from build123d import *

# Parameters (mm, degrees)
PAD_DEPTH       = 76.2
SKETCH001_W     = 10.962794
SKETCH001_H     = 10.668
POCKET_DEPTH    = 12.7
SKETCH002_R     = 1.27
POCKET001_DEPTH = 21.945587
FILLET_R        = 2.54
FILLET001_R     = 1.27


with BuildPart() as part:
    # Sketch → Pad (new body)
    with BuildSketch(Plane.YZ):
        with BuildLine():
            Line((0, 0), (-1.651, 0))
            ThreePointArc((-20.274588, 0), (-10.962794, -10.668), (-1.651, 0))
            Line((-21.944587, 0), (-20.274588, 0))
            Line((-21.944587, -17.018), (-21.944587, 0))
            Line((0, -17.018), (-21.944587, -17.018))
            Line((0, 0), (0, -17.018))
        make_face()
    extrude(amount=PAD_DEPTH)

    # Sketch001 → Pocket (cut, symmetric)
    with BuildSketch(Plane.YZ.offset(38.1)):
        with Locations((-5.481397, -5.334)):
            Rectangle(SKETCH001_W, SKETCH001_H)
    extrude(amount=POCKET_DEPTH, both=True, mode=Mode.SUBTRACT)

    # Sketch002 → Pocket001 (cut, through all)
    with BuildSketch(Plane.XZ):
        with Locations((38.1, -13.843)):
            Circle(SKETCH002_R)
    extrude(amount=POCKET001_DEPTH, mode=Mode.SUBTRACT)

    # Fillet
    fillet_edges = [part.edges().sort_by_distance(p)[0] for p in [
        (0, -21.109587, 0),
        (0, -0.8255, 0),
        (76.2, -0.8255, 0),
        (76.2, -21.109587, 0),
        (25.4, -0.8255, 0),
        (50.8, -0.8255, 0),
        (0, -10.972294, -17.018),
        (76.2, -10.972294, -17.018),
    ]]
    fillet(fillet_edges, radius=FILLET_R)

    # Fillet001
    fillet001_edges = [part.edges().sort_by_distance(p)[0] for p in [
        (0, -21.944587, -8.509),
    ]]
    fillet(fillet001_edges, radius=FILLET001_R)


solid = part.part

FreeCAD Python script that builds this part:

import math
import FreeCAD as App
import Part
import Sketcher
Q = App.Units.Quantity


def edges_at(feature, points):
    """Names of the edges that pass closest to the given points."""
    edges = feature.Shape.Edges
    near = lambda p: min(range(len(edges)), key=lambda i: edges[i].distToShape(Part.Vertex(*p))[0])
    return sorted({f"Edge{near(p) + 1}" for p in points})


def add_polygon(sketch, points):
    """Adds a closed chain of lines whose ends are joined by coincident constraints."""
    first, n = sketch.GeometryCount, len(points)
    for a, b in zip(points, points[1:] + points[:1]):
        sketch.addGeometry(Part.LineSegment(App.Vector(*a, 0), App.Vector(*b, 0)), False)
    for i in range(n):
        sketch.addConstraint(Sketcher.Constraint("Coincident", first + i, 2, first + (i + 1) % n, 1))

doc = App.newDocument("Part")
params = doc.addObject("Spreadsheet::Sheet", "Params")
for row, (alias, value) in enumerate([
    ("sketch1_radius", "0.37 in"),
    ("sketch1_height", "0.67 in"),
    ("sketch1_width", "0.065 in"),
    ("pad1_length", "3 in"),
    ("sketch2_height", "0.42 in"),
    ("pocket1_length", "1 in"),
    ("sketch3_diameter", "0.1 in"),
    ("fillet_radius", "0.1 in"),
    ("fillet2_radius", "0.05 in"),
], start=1):
    params.set(f"A{row}", alias)
    params.set(f"B{row}", "=" + value)
    params.setAlias(f"B{row}", alias)

body = doc.addObject("PartDesign::Body", "Body")

# Sketch on YZ plane
sketch1 = doc.addObject("Sketcher::SketchObject", "Sketch")
body.addObject(sketch1)
sketch1.AttachmentSupport = (doc.YZ_Plane, [""])
sketch1.MapMode = "FlatFace"
sketch1.addGeometry(Part.LineSegment(App.Vector(0, 0, 0), App.Vector(-1.7, 0, 0)), False)
sketch1.addGeometry(Part.ArcOfCircle(Part.Circle(App.Vector(-11, -1.3, 0), App.Vector(0, 0, 1), 9.4), math.radians(172), math.radians(368)), False)
sketch1.addGeometry(Part.LineSegment(App.Vector(-20.3, 0, 0), App.Vector(-21.9, 0, 0)), False)
sketch1.addGeometry(Part.LineSegment(App.Vector(-21.9, 0, 0), App.Vector(-21.9, -17, 0)), False)
sketch1.addGeometry(Part.LineSegment(App.Vector(-21.9, -17, 0), App.Vector(0, -17, 0)), False)
sketch1.addGeometry(Part.LineSegment(App.Vector(0, -17, 0), App.Vector(0, 0, 0)), False)
sketch1.addConstraint(Sketcher.Constraint("Coincident", 0, 2, 1, 2))
sketch1.addConstraint(Sketcher.Constraint("Coincident", 1, 1, 2, 1))
sketch1.addConstraint(Sketcher.Constraint("Coincident", 2, 2, 3, 1))
sketch1.addConstraint(Sketcher.Constraint("Coincident", 3, 2, 4, 1))
sketch1.addConstraint(Sketcher.Constraint("Coincident", 4, 2, 5, 1))
sketch1.addConstraint(Sketcher.Constraint("Coincident", 5, 2, 0, 1))
sketch1.addConstraint(Sketcher.Constraint("Horizontal", 0))
sketch1.addConstraint(Sketcher.Constraint("Horizontal", 2))
sketch1.addConstraint(Sketcher.Constraint("Vertical", 3))
sketch1.addConstraint(Sketcher.Constraint("Horizontal", 4))
sketch1.addConstraint(Sketcher.Constraint("Vertical", 5))
sketch1.addConstraint(Sketcher.Constraint("Coincident", 5, 2, -1, 1))
sketch1.addConstraint(Sketcher.Constraint("PointOnObject", 1, 1, -1))
sketch1.addConstraint(Sketcher.Constraint("Radius", 1, Q("0.37 in")))
sketch1.addConstraint(Sketcher.Constraint("DistanceY", 3, 2, 3, 1, Q("0.67 in")))
sketch1.addConstraint(Sketcher.Constraint("DistanceX", 0, 2, 0, 1, Q("0.065 in")))
sketch1.addConstraint(Sketcher.Constraint("DistanceY", 1, 3, -1, 1, Q("0.05 in")))
sketch1.addConstraint(Sketcher.Constraint("DistanceX", 2, 2, 2, 1, 1.669999))
sketch1.setExpression("Constraints[13]", "Params.sketch1_radius")
sketch1.setExpression("Constraints[14]", "Params.sketch1_height")
sketch1.setExpression("Constraints[15]", "Params.sketch1_width")
pad1 = doc.addObject("PartDesign::Pad", "Pad")
body.addObject(pad1)
pad1.Profile = sketch1
pad1.setExpression("Length", "Params.pad1_length")

# Sketch on YZ plane
sketch2 = doc.addObject("Sketcher::SketchObject", "Sketch001")
body.addObject(sketch2)
sketch2.AttachmentSupport = (doc.YZ_Plane, [""])
sketch2.MapMode = "FlatFace"
sketch2.AttachmentOffset = App.Placement(App.Vector(0, 0, 1.5 * 25.4), App.Rotation())
add_polygon(sketch2, [(-11, 0), (-11, -11), (0, -11), (0, 0)])  # lines 0-3
sketch2.addConstraint(Sketcher.Constraint("Vertical", 0))
sketch2.addConstraint(Sketcher.Constraint("Horizontal", 1))
sketch2.addConstraint(Sketcher.Constraint("Vertical", 2))
sketch2.addConstraint(Sketcher.Constraint("Horizontal", 3))
sketch2.addConstraint(Sketcher.Constraint("Coincident", 2, 2, -1, 1))
sketch2.addConstraint(Sketcher.Constraint("DistanceY", 0, 2, 0, 1, Q("0.42 in")))
sketch2.addConstraint(Sketcher.Constraint("DistanceX", 1, 1, 1, 2, 10.962794))
sketch2.setExpression("Constraints[9]", "Params.sketch2_height")
pocket1 = doc.addObject("PartDesign::Pocket", "Pocket")
body.addObject(pocket1)
pocket1.Profile = sketch2
pocket1.setExpression("Length", "Params.pocket1_length")
pocket1.Midplane = True

# Sketch on XZ plane
sketch3 = doc.addObject("Sketcher::SketchObject", "Sketch002")
body.addObject(sketch3)
sketch3.AttachmentSupport = (doc.XZ_Plane, [""])
sketch3.MapMode = "FlatFace"
sketch3.addGeometry(Part.Circle(App.Vector(38.1, -13.8, 0), App.Vector(0, 0, 1), 1.3), False)
sketch3.addConstraint(Sketcher.Constraint("Diameter", 0, Q("0.1 in")))
sketch3.addConstraint(Sketcher.Constraint("DistanceX", -1, 1, 0, 3, Q("1.5 in")))
sketch3.addConstraint(Sketcher.Constraint("DistanceY", 0, 3, -1, 1, Q("0.545 in")))
sketch3.setExpression("Constraints[0]", "Params.sketch3_diameter")
pocket2 = doc.addObject("PartDesign::Pocket", "Pocket001")
body.addObject(pocket2)
pocket2.Profile = sketch3
pocket2.Type = "ThroughAll"
pocket2.Reversed = True
doc.recompute()

fillet = doc.addObject("PartDesign::Fillet", "Fillet")
body.addObject(fillet)
fillet.Base = (pocket2, edges_at(pocket2, [
    (0, -21.11, 0),
    (0, -0.826, 0),
    (76.2, -0.826, 0),
    (76.2, -21.11, 0),
    (25.4, -0.826, 0),
    (50.8, -0.826, 0),
    (0, -10.972, -17.018),
    (76.2, -10.972, -17.018),
]))
fillet.setExpression("Radius", "Params.fillet_radius")
doc.recompute()

fillet2 = doc.addObject("PartDesign::Fillet", "Fillet001")
body.addObject(fillet2)
fillet2.Base = (fillet, edges_at(fillet, [(0, -21.945, -8.509)]))
fillet2.setExpression("Radius", "Params.fillet2_radius")

doc.recompute()
